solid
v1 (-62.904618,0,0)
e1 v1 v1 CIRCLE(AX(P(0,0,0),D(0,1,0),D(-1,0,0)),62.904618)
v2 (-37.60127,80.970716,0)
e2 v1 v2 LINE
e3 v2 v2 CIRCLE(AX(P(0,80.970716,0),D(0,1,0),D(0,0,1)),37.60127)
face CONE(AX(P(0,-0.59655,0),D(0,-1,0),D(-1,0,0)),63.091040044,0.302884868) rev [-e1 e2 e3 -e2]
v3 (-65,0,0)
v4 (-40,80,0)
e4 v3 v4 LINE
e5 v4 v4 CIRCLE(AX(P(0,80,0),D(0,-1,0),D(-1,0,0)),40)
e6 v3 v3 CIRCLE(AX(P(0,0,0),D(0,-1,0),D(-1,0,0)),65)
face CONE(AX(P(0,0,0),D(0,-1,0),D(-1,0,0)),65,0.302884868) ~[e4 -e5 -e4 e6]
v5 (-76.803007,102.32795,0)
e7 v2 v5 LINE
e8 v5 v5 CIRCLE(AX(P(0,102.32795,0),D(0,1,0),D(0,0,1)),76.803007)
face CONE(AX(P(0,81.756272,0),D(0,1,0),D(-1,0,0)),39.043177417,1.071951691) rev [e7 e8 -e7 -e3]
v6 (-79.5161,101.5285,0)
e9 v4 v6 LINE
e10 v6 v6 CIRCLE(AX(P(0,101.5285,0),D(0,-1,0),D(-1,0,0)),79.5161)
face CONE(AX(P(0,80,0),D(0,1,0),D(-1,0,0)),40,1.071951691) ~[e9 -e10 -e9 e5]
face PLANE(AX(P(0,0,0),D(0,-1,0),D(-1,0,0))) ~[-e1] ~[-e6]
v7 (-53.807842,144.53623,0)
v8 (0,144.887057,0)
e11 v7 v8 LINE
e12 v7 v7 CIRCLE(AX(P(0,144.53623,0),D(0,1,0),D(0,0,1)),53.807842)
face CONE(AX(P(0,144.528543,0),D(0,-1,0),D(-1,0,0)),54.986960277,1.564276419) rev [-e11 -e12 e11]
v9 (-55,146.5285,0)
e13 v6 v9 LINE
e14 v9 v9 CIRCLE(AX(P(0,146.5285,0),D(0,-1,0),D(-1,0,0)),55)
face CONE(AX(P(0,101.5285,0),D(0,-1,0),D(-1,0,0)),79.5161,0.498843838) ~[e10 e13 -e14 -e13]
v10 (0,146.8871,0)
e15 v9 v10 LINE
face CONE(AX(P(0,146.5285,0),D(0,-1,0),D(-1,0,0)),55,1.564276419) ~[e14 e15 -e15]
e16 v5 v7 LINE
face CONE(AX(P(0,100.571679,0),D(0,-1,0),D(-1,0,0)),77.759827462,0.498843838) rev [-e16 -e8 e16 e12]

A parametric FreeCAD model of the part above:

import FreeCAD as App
import Part
import Sketcher

V = App.Vector
Q = App.Units.Quantity


def faces_at(feature, points):
    """Names of the faces that lie closest to the given points."""
    faces = feature.Shape.Faces
    near = lambda p: min(range(len(faces)), key=lambda i: faces[i].distToShape(Part.Vertex(*p))[0])
    return sorted({f"Face{near(p) + 1}" for p in points})


def add_polygon(sketch, points):
    """Adds a closed chain of lines whose ends are joined by coincident constraints."""
    first, n = sketch.GeometryCount, len(points)
    for a, b in zip(points, points[1:] + points[:1]):
        sketch.addGeometry(Part.LineSegment(App.Vector(*a, 0), App.Vector(*b, 0)), False)
    for i in range(n):
        sketch.addConstraint(Sketcher.Constraint("Coincident", first + i, 2, first + (i + 1) % n, 1))

doc = App.newDocument("Part")
body = doc.addObject("PartDesign::Body", "Body")

# Sketch on XY plane
sketch1 = body.newObject("Sketcher::SketchObject", "Sketch")
sketch1.AttachmentSupport = (doc.getObject("XY_Plane"), [""])
sketch1.MapMode = "FlatFace"
add_polygon(sketch1, [(-65, 0), (0, 0), (0, 147), (-55, 147), (-80, 102), (-40, 80)])  # lines 0-5
sketch1.addConstraint([
    Sketcher.Constraint("Horizontal", 0),
    Sketcher.Constraint("Vertical", 1),
    Sketcher.Constraint("Coincident", 0, 2, -1, 1),
    Sketcher.Constraint("Perpendicular", 3, 4),
    Sketcher.Constraint("DistanceX", 0, 1, 0, 2, Q("65 mm")),
    Sketcher.Constraint("Distance", 4, Q("45 mm")),
    Sketcher.Constraint("DistanceX", 2, 2, -1, 1, Q("55 mm")),
    Sketcher.Constraint("DistanceX", 4, 2, -1, 1, Q("40 mm")),
    Sketcher.Constraint("DistanceY", -1, 1, 4, 2, Q("80 mm")),
    Sketcher.Constraint("DistanceY", 3, 2, 2, 2, Q("45 mm")),
    Sketcher.Constraint("DistanceY", 1, 1, 1, 2, Q("146.887 mm")),
])
revolution = body.newObject("PartDesign::Revolution", "Revolution")
revolution.Profile = sketch1
revolution.ReferenceAxis = (sketch1, ["V_Axis"])
revolution.Angle = 360
doc.recompute()

thickness = body.newObject("PartDesign::Thickness", "Thickness")
thickness.Base = (revolution, faces_at(revolution, [(20.242, 0, -0.215)]))
thickness.Value = 2
thickness.Reversed = True
thickness.Join = "Intersection"

doc.recompute()
